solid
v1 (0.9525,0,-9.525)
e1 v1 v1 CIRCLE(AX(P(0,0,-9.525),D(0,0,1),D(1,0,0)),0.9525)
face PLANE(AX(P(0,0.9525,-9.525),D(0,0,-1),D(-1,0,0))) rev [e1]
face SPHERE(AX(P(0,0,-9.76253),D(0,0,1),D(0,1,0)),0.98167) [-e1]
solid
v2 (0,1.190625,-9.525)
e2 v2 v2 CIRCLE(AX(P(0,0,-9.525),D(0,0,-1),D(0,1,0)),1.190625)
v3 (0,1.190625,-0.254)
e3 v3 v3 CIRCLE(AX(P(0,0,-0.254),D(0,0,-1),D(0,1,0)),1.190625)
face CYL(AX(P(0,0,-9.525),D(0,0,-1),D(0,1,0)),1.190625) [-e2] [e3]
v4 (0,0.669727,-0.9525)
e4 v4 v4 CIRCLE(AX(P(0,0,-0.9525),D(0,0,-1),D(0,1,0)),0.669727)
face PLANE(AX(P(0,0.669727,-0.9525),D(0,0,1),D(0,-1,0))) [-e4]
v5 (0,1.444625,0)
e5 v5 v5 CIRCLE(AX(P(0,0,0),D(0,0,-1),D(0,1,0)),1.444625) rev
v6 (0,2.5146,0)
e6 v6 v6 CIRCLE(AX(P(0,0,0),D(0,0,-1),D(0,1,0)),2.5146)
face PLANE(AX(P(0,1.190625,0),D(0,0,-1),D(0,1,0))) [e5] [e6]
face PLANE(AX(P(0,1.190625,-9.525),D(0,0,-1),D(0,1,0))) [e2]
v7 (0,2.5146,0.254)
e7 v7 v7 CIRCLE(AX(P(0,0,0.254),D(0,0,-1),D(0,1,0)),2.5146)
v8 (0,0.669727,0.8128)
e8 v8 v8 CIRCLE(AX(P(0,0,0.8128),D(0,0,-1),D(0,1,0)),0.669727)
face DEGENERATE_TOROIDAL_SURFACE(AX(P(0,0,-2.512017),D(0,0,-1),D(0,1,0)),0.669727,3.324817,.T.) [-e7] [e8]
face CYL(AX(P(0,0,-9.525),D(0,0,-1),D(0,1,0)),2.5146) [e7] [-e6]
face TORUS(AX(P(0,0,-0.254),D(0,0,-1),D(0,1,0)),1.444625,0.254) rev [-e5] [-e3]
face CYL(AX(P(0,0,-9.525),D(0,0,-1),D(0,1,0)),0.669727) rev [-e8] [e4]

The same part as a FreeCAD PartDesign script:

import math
import FreeCAD as App
import Part
import Sketcher

V = App.Vector
Q = App.Units.Quantity


def edges_at(feature, points):
    """Names of the edges that pass closest to the given points."""
    edges = feature.Shape.Edges
    near = lambda p: min(range(len(edges)), key=lambda i: edges[i].distToShape(Part.Vertex(*p))[0])
    return sorted({f"Edge{near(p) + 1}" for p in points})

doc = App.newDocument("Part")
body = doc.addObject("PartDesign::Body", "Body")

sketch1 = body.newObject("Sketcher::SketchObject", "Sketch")
sketch1.AttachmentSupport = (doc.getObject("YZ_Plane"), [""])
sketch1.MapMode = "FlatFace"
sketch1.addGeometry(Part.LineSegment(V(1.19, -9.53, 0), V(1.19, 0, 0)), False)
sketch1.addGeometry(Part.LineSegment(V(1.19, 0, 0), V(2.51, 0, 0)), False)
sketch1.addGeometry(Part.LineSegment(V(2.51, 0, 0), V(2.51, 0.25, 0)), False)
sketch1.addGeometry(Part.ArcOfCircle(Part.Circle(V(0.67, -2.51, 0), V(0, 0, 1), 3.32), math.radians(56), math.radians(90)), False)
sketch1.addGeometry(Part.LineSegment(V(0.67, 0.81, 0), V(0.67, 0, 0)), False)
sketch1.addGeometry(Part.LineSegment(V(0.67, 0, 0), V(0.67, -0.95, 0)), False)
sketch1.addGeometry(Part.LineSegment(V(0.67, -0.95, 0), V(0, -0.95, 0)), False)
sketch1.addGeometry(Part.LineSegment(V(0, -0.95, 0), V(0, -9.53, 0)), False)
sketch1.addGeometry(Part.LineSegment(V(0, -9.53, 0), V(1.19, -9.53, 0)), False)
sketch1.addConstraint(Sketcher.Constraint("Coincident", 0, 2, 1, 1))
sketch1.addConstraint(Sketcher.Constraint("Coincident", 1, 2, 2, 1))
sketch1.addConstraint(Sketcher.Constraint("Coincident", 2, 2, 3, 1))
sketch1.addConstraint(Sketcher.Constraint("Coincident", 3, 2, 4, 1))
sketch1.addConstraint(Sketcher.Constraint("Coincident", 4, 2, 5, 1))
sketch1.addConstraint(Sketcher.Constraint("Coincident", 5, 2, 6, 1))
sketch1.addConstraint(Sketcher.Constraint("Coincident", 6, 2, 7, 1))
sketch1.addConstraint(Sketcher.Constraint("Coincident", 7, 2, 8, 1))
sketch1.addConstraint(Sketcher.Constraint("Coincident", 8, 2, 0, 1))
sketch1.addConstraint(Sketcher.Constraint("Vertical", 0))
sketch1.addConstraint(Sketcher.Constraint("Horizontal", 1))
sketch1.addConstraint(Sketcher.Constraint("Vertical", 2))
sketch1.addConstraint(Sketcher.Constraint("Vertical", 4))
sketch1.addConstraint(Sketcher.Constraint("Vertical", 5))
sketch1.addConstraint(Sketcher.Constraint("Horizontal", 6))
sketch1.addConstraint(Sketcher.Constraint("Vertical", 7))
sketch1.addConstraint(Sketcher.Constraint("Horizontal", 8))
sketch1.addConstraint(Sketcher.Constraint("PointOnObject", 0, 2, -1))
sketch1.addConstraint(Sketcher.Constraint("PointOnObject", 4, 2, -1))
sketch1.addConstraint(Sketcher.Constraint("PointOnObject", 6, 2, -2))
sketch1.addConstraint(Sketcher.Constraint("DistanceY", 2, 1, 2, 2, Q("0.01 in")))
sketch1.addConstraint(Sketcher.Constraint("DistanceX", 8, 1, 8, 2, Q("0.046875 in")))
sketch1.addConstraint(Sketcher.Constraint("DistanceY", 0, 1, 0, 2, Q("0.375 in")))
sketch1.addConstraint(Sketcher.Constraint("DistanceY", 4, 2, 4, 1, Q("0.032 in")))
sketch1.addConstraint(Sketcher.Constraint("DistanceY", 5, 2, 5, 1, Q("0.0375 in")))
sketch1.addConstraint(Sketcher.Constraint("DistanceX", -1, 1, 1, 2, Q("0.099 in")))
sketch1.addConstraint(Sketcher.Constraint("Radius", 3, Q("3.324817 mm")))
sketch1.addConstraint(Sketcher.Constraint("DistanceX", 3, 2, 0, 2, Q("0.520898 mm")))
revolution = body.newObject("PartDesign::Revolution", "Revolution")
revolution.Profile = sketch1
revolution.ReferenceAxis = (sketch1, ["V_Axis"])
revolution.Angle = 360
doc.recompute()

fillet = body.newObject("PartDesign::Fillet", "Fillet")
fillet.Base = (revolution, edges_at(revolution, [(0, -1.191, 0)]))
fillet.Radius = Q("0.01 in")
body2 = doc.addObject("PartDesign::Body", "Body001")

sketch2 = body2.newObject("Sketcher::SketchObject", "Sketch001")
sketch2.AttachmentSupport = (doc.getObject("YZ_Plane001"), [""])
sketch2.MapMode = "FlatFace"
sketch2.addGeometry(Part.LineSegment(V(1, -9.5, 0), V(0, -9.5, 0)), False)
sketch2.addGeometry(Part.LineSegment(V(0, -9.5, 0), V(0, -10.7, 0)), False)
sketch2.addGeometry(Part.ArcOfCircle(Part.Circle(V(0, -9.8, 0), V(0, 0, 1), 1), math.radians(-90), math.radians(14)), False)
sketch2.addConstraint(Sketcher.Constraint("Coincident", 0, 2, 1, 1))
sketch2.addConstraint(Sketcher.Constraint("Coincident", 1, 2, 2, 1))
sketch2.addConstraint(Sketcher.Constraint("Coincident", 2, 2, 0, 1))
sketch2.addConstraint(Sketcher.Constraint("Horizontal", 0))
sketch2.addConstraint(Sketcher.Constraint("Vertical", 1))
sketch2.addConstraint(Sketcher.Constraint("PointOnObject", 2, 3, -2))
sketch2.addConstraint(Sketcher.Constraint("PointOnObject", 0, 2, -2))
sketch2.addConstraint(Sketcher.Constraint("DistanceY", 1, 2, 1, 1, Q("0.048 in")))
sketch2.addConstraint(Sketcher.Constraint("DistanceX", 0, 2, 0, 1, Q("0.0375 in")))
sketch2.addConstraint(Sketcher.Constraint("DistanceY", 0, 2, -1, 1, Q("0.375 in")))
revolution2 = body2.newObject("PartDesign::Revolution", "Revolution001")
revolution2.Profile = sketch2
revolution2.ReferenceAxis = (sketch2, ["V_Axis"])
revolution2.Angle = 360

doc.recompute()
